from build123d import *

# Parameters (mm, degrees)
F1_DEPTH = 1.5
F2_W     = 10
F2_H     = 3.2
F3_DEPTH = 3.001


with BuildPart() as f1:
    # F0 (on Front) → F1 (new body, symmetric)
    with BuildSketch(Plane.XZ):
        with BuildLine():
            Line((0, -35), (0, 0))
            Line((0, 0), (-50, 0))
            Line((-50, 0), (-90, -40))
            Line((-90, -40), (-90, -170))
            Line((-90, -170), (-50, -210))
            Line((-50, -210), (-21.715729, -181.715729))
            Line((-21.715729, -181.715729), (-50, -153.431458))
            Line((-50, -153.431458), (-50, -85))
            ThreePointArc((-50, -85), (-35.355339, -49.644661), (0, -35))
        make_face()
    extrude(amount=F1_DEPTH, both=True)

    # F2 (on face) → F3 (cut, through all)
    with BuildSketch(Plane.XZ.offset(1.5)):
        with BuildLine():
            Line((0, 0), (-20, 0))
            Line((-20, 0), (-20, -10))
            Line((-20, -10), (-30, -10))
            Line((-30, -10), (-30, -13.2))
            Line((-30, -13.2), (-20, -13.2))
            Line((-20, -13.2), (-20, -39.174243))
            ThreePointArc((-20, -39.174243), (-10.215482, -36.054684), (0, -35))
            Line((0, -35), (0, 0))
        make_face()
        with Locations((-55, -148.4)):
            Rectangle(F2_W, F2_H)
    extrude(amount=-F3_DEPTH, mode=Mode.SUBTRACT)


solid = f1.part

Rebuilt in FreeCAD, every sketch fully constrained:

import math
import FreeCAD as App
import Part
import Sketcher
from FreeCAD import Vector
Q = App.Units.Quantity


def add_polygon(sketch, points):
    """Adds a closed chain of lines whose ends are joined by coincident constraints."""
    first, n = sketch.GeometryCount, len(points)
    for a, b in zip(points, points[1:] + points[:1]):
        sketch.addGeometry(Part.LineSegment(App.Vector(*a, 0), App.Vector(*b, 0)), False)
    for i in range(n):
        sketch.addConstraint(Sketcher.Constraint("Coincident", first + i, 2, first + (i + 1) % n, 1))

doc = App.newDocument("Part")
body = doc.addObject("PartDesign::Body", "Body")

sketch1 = body.newObject("Sketcher::SketchObject", "Sketch")
sketch1.AttachmentSupport = (doc.getObject("XZ_Plane"), [""])
sketch1.MapMode = "FlatFace"
sketch1.addGeometry([
    Part.LineSegment(Vector(0, -35, 0), Vector(0, 0, 0)),
    Part.LineSegment(Vector(0, 0, 0), Vector(-50, 0, 0)),
    Part.LineSegment(Vector(-50, 0, 0), Vector(-90, -40, 0)),
    Part.LineSegment(Vector(-90, -40, 0), Vector(-90, -170, 0)),
    Part.LineSegment(Vector(-90, -170, 0), Vector(-50, -210, 0)),
    Part.LineSegment(Vector(-50, -210, 0), Vector(-22, -182, 0)),
    Part.LineSegment(Vector(-22, -182, 0), Vector(-50, -153, 0)),
    Part.LineSegment(Vector(-50, -153, 0), Vector(-50, -85, 0)),
    Part.ArcOfCircle(Part.Circle(Vector(0, -85, 0), Vector(0, 0, 1), 50), math.radians(90), math.radians(180)),
], False)
sketch1.addConstraint([
    Sketcher.Constraint("Coincident", 0, 2, 1, 1),
    Sketcher.Constraint("Coincident", 1, 2, 2, 1),
    Sketcher.Constraint("Coincident", 2, 2, 3, 1),
    Sketcher.Constraint("Coincident", 3, 2, 4, 1),
    Sketcher.Constraint("Coincident", 4, 2, 5, 1),
    Sketcher.Constraint("Coincident", 5, 2, 6, 1),
    Sketcher.Constraint("Coincident", 6, 2, 7, 1),
    Sketcher.Constraint("Tangent", 7, 2, 8, 2),
    Sketcher.Constraint("Coincident", 8, 1, 0, 1),
    Sketcher.Constraint("Vertical", 0),
    Sketcher.Constraint("Horizontal", 1),
    Sketcher.Constraint("Vertical", 3),
    Sketcher.Constraint("Vertical", 7),
    Sketcher.Constraint("Coincident", 0, 2, -1, 1),
    Sketcher.Constraint("PointOnObject", 8, 3, -2),
    Sketcher.Constraint("Perpendicular", 2, 4),
    Sketcher.Constraint("Perpendicular", 4, 5),
    Sketcher.Constraint("Perpendicular", 5, 6),
    Sketcher.Constraint("Vertical", 1, 2, 4, 2),
    Sketcher.Constraint("Vertical", 4, 2, 6, 2),
    Sketcher.Constraint("Equal", 2, 4),
    Sketcher.Constraint("Radius", 8, Q("50 mm")),
    Sketcher.Constraint("DistanceY", 0, 1, 0, 2, Q("35 mm")),
    Sketcher.Constraint("DistanceY", 3, 2, 3, 1, Q("130 mm")),
    Sketcher.Constraint("Distance", 5, Q("40 mm")),
    Sketcher.Constraint("DistanceX", 2, 2, -1, 1, Q("90 mm")),
])
pad1 = body.newObject("PartDesign::Pad", "Pad")
pad1.Profile = sketch1
pad1.Length = 3
pad1.Midplane = True

sketch2 = body.newObject("Sketcher::SketchObject", "Sketch001")
sketch2.AttachmentSupport = (doc.getObject("XZ_Plane"), [""])
sketch2.MapMode = "FlatFace"
sketch2.AttachmentOffset = App.Placement(Vector(0, 0, 1.5), App.Rotation())
sketch2.addGeometry(Part.LineSegment(Vector(0, 0, 0), Vector(-20, 0, 0)), False)
sketch2.addGeometry(Part.LineSegment(Vector(-20, 0, 0), Vector(-20, -10, 0)), False)
sketch2.addGeometry(Part.LineSegment(Vector(-20, -10, 0), Vector(-30, -10, 0)), False)
sketch2.addGeometry(Part.LineSegment(Vector(-30, -10, 0), Vector(-30, -13.2, 0)), False)
sketch2.addGeometry(Part.LineSegment(Vector(-30, -13.2, 0), Vector(-20, -13.2, 0)), False)
sketch2.addGeometry(Part.LineSegment(Vector(-20, -13.2, 0), Vector(-20, -39.2, 0)), False)
sketch2.addGeometry(Part.ArcOfCircle(Part.Circle(Vector(0, -85, 0), Vector(0, 0, 1), 50), math.radians(90), math.radians(114)), False)
sketch2.addGeometry(Part.LineSegment(Vector(0, -35, 0), Vector(0, 0, 0)), False)
add_polygon(sketch2, [(-60, -146.8), (-60, -150), (-50, -150), (-50, -146.8)])
sketch2.addConstraint([
    Sketcher.Constraint("Coincident", 0, 2, 1, 1),
    Sketcher.Constraint("Coincident", 1, 2, 2, 1),
    Sketcher.Constraint("Coincident", 2, 2, 3, 1),
    Sketcher.Constraint("Coincident", 3, 2, 4, 1),
    Sketcher.Constraint("Coincident", 4, 2, 5, 1),
    Sketcher.Constraint("Coincident", 5, 2, 6, 2),
    Sketcher.Constraint("Coincident", 6, 1, 7, 1),
    Sketcher.Constraint("Coincident", 7, 2, 0, 1),
    Sketcher.Constraint("Horizontal", 0),
    Sketcher.Constraint("Vertical", 1),
    Sketcher.Constraint("Horizontal", 2),
    Sketcher.Constraint("Vertical", 3),
    Sketcher.Constraint("Horizontal", 4),
    Sketcher.Constraint("Vertical", 5),
    Sketcher.Constraint("Vertical", 7),
    Sketcher.Constraint("Vertical", 8),
    Sketcher.Constraint("Horizontal", 9),
    Sketcher.Constraint("Vertical", 10),
    Sketcher.Constraint("Horizontal", 11),
    Sketcher.Constraint("Coincident", 7, 2, -1, 1),
    Sketcher.Constraint("Vertical", 1, 2, 4, 2),
    Sketcher.Constraint("Equal", 4, 9),
    Sketcher.Constraint("Equal", 11, 1),
    Sketcher.Constraint("Equal", 3, 8),
    Sketcher.Constraint("DistanceX", 0, 2, 0, 1, Q("20 mm")),
    Sketcher.Constraint("DistanceX", 2, 2, 2, 1, Q("10 mm")),
    Sketcher.Constraint("DistanceY", 7, 1, 7, 2, Q("35 mm")),
    Sketcher.Constraint("DistanceY", 3, 2, 3, 1, Q("3.2 mm")),
    Sketcher.Constraint("DistanceX", 8, 2, -1, 1, Q("60 mm")),
    Sketcher.Constraint("DistanceY", 8, 2, -1, 1, Q("150 mm")),
    Sketcher.Constraint("Radius", 6, Q("49.999987 mm")),
    Sketcher.Constraint("DistanceY", 5, 2, 5, 1, Q("25.974243 mm")),
])
pocket1 = body.newObject("PartDesign::Pocket", "Pocket")
pocket1.Profile = sketch2
pocket1.Type = "ThroughAll"

doc.recompute()
